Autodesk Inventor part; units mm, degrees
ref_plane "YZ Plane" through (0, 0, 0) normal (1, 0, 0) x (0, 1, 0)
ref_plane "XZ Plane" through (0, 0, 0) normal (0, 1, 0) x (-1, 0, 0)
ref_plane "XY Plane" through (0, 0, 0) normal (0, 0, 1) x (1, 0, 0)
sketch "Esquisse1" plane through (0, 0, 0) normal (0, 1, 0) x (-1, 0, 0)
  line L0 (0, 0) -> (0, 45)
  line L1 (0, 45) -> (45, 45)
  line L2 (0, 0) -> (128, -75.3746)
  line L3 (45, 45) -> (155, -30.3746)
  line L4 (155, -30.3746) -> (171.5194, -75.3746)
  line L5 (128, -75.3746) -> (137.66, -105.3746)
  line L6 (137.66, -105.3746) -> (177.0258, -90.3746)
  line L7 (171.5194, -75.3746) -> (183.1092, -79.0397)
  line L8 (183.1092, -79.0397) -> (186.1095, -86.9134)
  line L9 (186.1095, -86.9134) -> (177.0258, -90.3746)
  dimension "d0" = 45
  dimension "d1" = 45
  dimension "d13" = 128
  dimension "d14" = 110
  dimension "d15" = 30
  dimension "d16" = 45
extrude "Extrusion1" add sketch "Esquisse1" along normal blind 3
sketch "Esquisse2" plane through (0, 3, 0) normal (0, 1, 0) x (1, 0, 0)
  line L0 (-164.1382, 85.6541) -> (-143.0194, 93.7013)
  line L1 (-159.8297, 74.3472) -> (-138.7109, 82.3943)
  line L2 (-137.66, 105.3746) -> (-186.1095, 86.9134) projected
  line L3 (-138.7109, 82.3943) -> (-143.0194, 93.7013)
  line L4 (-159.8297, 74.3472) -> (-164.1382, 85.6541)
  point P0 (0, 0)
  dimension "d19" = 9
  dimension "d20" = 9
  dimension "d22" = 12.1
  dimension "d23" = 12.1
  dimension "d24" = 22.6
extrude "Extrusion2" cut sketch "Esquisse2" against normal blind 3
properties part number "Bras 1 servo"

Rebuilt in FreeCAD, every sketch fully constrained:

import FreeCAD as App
import Part
import Sketcher
Q = App.Units.Quantity


def add_polygon(sketch, points):
    """Adds a closed chain of lines whose ends are joined by coincident constraints."""
    first, n = sketch.GeometryCount, len(points)
    for a, b in zip(points, points[1:] + points[:1]):
        sketch.addGeometry(Part.LineSegment(App.Vector(*a, 0), App.Vector(*b, 0)), False)
    for i in range(n):
        sketch.addConstraint(Sketcher.Constraint("Coincident", first + i, 2, first + (i + 1) % n, 1))

doc = App.newDocument("Part")
body = doc.addObject("PartDesign::Body", "Body")

# Sketch on XZ plane
sketch1 = body.newObject("Sketcher::SketchObject", "Sketch")
sketch1.AttachmentSupport = (doc.getObject("XZ_Plane"), [""])
sketch1.MapMode = "FlatFace"
add_polygon(sketch1, [(0, 45), (0, 0), (-128, -75), (-138, -105), (-177, -90), (-186, -87), (-183, -79), (-172, -75), (-155, -30), (-45, 45)])  # lines 0-9
sketch1.addConstraint([
    Sketcher.Constraint("Vertical", 0),
    Sketcher.Constraint("Horizontal", 9),
    Sketcher.Constraint("Coincident", 0, 2, -1, 1),
    Sketcher.Constraint("Parallel", 3, 4),
    Sketcher.Constraint("Perpendicular", 4, 5),
    Sketcher.Constraint("Horizontal", 1, 2, 6, 2),
    Sketcher.Constraint("Equal", 9, 0),
    Sketcher.Constraint("DistanceX", 9, 1, 9, 2, Q("45 mm")),
    Sketcher.Constraint("DistanceX", 1, 2, -1, 1, Q("128 mm")),
    Sketcher.Constraint("DistanceY", 2, 2, 1, 2, Q("30 mm")),
    Sketcher.Constraint("DistanceY", 6, 2, 7, 2, Q("45 mm")),
    Sketcher.Constraint("DistanceX", 7, 2, 8, 2, Q("110 mm")),
    Sketcher.Constraint("DistanceY", 2, 2, 3, 2, Q("15 mm")),
    Sketcher.Constraint("Angle", 3, Q("159.141 deg")),
    Sketcher.Constraint("Angle", 8, Q("34.4199 deg")),
    Sketcher.Constraint("DistanceX", 2, 2, -1, 1, Q("137.66 mm")),
    Sketcher.Constraint("DistanceX", 4, 2, 6, 2, Q("14.59 mm")),
    Sketcher.Constraint("Distance", 5, Q("8.426 mm")),
    Sketcher.Constraint("DistanceY", 3, 2, 5, 2, Q("11.335 mm")),
])
pad1 = body.newObject("PartDesign::Pad", "Pad")
pad1.Profile = sketch1
pad1.Length = 3
pad1.Reversed = True

# Sketch on XZ plane
sketch2 = body.newObject("Sketcher::SketchObject", "Sketch001")
sketch2.AttachmentSupport = (doc.getObject("XZ_Plane"), [""])
sketch2.MapMode = "FlatFace"
sketch2.AttachmentOffset = App.Placement(App.Vector(0, 0, -3), App.Rotation())
add_polygon(sketch2, [(-143, -94), (-164, -86), (-160, -74), (-139, -82)])  # lines 0-3
sketch2.addConstraint([
    Sketcher.Constraint("Perpendicular", 0, 1),
    Sketcher.Constraint("Perpendicular", 1, 2),
    Sketcher.Constraint("Perpendicular", 2, 3),
    Sketcher.Constraint("Distance", 0, Q("22.6 mm")),
    Sketcher.Constraint("Distance", 1, Q("12.1 mm")),
    Sketcher.Constraint("Angle", 0, Q("159.141 deg")),
    Sketcher.Constraint("DistanceY", 0, 2, -1, 1, Q("85.654 mm")),
    Sketcher.Constraint("DistanceX", 2, 2, -1, 1, Q("138.711 mm")),
])
pocket1 = body.newObject("PartDesign::Pocket", "Pocket")
pocket1.Profile = sketch2
pocket1.Length = 3
pocket1.Reversed = True

doc.recompute()
